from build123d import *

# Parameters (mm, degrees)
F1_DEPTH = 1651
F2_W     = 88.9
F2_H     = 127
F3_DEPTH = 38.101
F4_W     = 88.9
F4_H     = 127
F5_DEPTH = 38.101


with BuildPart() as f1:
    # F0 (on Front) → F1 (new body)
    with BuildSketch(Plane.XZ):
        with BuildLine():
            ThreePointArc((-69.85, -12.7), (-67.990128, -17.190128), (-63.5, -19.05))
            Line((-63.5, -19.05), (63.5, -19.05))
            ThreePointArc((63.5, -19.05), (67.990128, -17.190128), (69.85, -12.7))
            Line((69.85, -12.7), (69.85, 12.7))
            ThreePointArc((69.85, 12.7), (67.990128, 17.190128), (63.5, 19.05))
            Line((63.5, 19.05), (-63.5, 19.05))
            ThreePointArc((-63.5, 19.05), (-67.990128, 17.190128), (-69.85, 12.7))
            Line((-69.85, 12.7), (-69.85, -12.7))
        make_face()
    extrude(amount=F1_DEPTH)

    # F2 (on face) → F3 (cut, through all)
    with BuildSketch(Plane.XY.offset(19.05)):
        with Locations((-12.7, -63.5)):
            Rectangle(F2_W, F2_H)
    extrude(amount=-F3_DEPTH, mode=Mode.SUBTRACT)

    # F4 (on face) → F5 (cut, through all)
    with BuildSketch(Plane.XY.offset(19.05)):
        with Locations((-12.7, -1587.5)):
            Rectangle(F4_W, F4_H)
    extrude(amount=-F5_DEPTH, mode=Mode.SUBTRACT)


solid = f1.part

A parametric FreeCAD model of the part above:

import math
import FreeCAD as App
import Part
import Sketcher

V = App.Vector
Q = App.Units.Quantity


def add_polygon(sketch, points):
    """Adds a closed chain of lines whose ends are joined by coincident constraints."""
    first, n = sketch.GeometryCount, len(points)
    for a, b in zip(points, points[1:] + points[:1]):
        sketch.addGeometry(Part.LineSegment(App.Vector(*a, 0), App.Vector(*b, 0)), False)
    for i in range(n):
        sketch.addConstraint(Sketcher.Constraint("Coincident", first + i, 2, first + (i + 1) % n, 1))

doc = App.newDocument("Part")
body = doc.addObject("PartDesign::Body", "Body")

# Sketch on XZ plane
sketch1 = body.newObject("Sketcher::SketchObject", "Sketch")
sketch1.AttachmentSupport = (doc.getObject("XZ_Plane"), [""])
sketch1.MapMode = "FlatFace"
sketch1.addGeometry(Part.ArcOfCircle(Part.Circle(V(-63.5, -12.7, 0), V(0, 0, 1), 6.35), math.radians(-179.999998), math.radians(-90.000002)), False)
sketch1.addGeometry(Part.LineSegment(V(-63.5, -19.05, 0), V(63.5, -19.05, 0)), False)
sketch1.addGeometry(Part.ArcOfCircle(Part.Circle(V(63.5, -12.7, 0), V(0, 0, 1), 6.35), math.radians(-89.999998), math.radians(-0.000002)), False)
sketch1.addGeometry(Part.LineSegment(V(69.85, -12.7, 0), V(69.85, 12.7, 0)), False)
sketch1.addGeometry(Part.ArcOfCircle(Part.Circle(V(63.5, 12.7, 0), V(0, 0, 1), 6.35), math.radians(0.000002), math.radians(89.999998)), False)
sketch1.addGeometry(Part.LineSegment(V(63.5, 19.05, 0), V(-63.5, 19.05, 0)), False)
sketch1.addGeometry(Part.ArcOfCircle(Part.Circle(V(-63.5, 12.7, 0), V(0, 0, 1), 6.35), math.radians(90.000002), math.radians(179.999998)), False)
sketch1.addGeometry(Part.LineSegment(V(-69.85, 12.7, 0), V(-69.85, -12.7, 0)), False)
sketch1.addConstraint(Sketcher.Constraint("Tangent", 0, 2, 1, 1))
sketch1.addConstraint(Sketcher.Constraint("Tangent", 1, 2, 2, 1))
sketch1.addConstraint(Sketcher.Constraint("Tangent", 2, 2, 3, 1))
sketch1.addConstraint(Sketcher.Constraint("Tangent", 3, 2, 4, 1))
sketch1.addConstraint(Sketcher.Constraint("Tangent", 4, 2, 5, 1))
sketch1.addConstraint(Sketcher.Constraint("Tangent", 5, 2, 6, 1))
sketch1.addConstraint(Sketcher.Constraint("Tangent", 6, 2, 7, 1))
sketch1.addConstraint(Sketcher.Constraint("Tangent", 7, 2, 0, 1))
sketch1.addConstraint(Sketcher.Constraint("Horizontal", 1))
sketch1.addConstraint(Sketcher.Constraint("Vertical", 3))
sketch1.addConstraint(Sketcher.Constraint("Horizontal", 5))
sketch1.addConstraint(Sketcher.Constraint("Vertical", 7))
sketch1.addConstraint(Sketcher.Constraint("Equal", 0, 2))
sketch1.addConstraint(Sketcher.Constraint("Equal", 2, 4))
sketch1.addConstraint(Sketcher.Constraint("Equal", 4, 6))
sketch1.addConstraint(Sketcher.Constraint("Symmetric", 0, 3, 4, 3, -1, 1))
sketch1.addConstraint(Sketcher.Constraint("DistanceX", 1, 1, 1, 2, Q("5 in")))
sketch1.addConstraint(Sketcher.Constraint("DistanceY", 3, 1, 3, 2, Q("1 in")))
sketch1.addConstraint(Sketcher.Constraint("Radius", 0, Q("0.25 in")))
pad1 = body.newObject("PartDesign::Pad", "Pad")
pad1.Profile = sketch1
pad1.Length = Q("65 in")

# Sketch on XY plane
sketch2 = body.newObject("Sketcher::SketchObject", "Sketch001")
sketch2.AttachmentSupport = (doc.getObject("XY_Plane"), [""])
sketch2.MapMode = "FlatFace"
sketch2.AttachmentOffset = App.Placement(V(0, 0, 0.75 * 25.4), App.Rotation())
add_polygon(sketch2, [(-57.15, 0), (-57.15, -127), (31.75, -127), (31.75, 0)])  # lines 0-3
sketch2.addConstraint(Sketcher.Constraint("Vertical", 0))
sketch2.addConstraint(Sketcher.Constraint("Horizontal", 1))
sketch2.addConstraint(Sketcher.Constraint("Vertical", 2))
sketch2.addConstraint(Sketcher.Constraint("Horizontal", 3))
sketch2.addConstraint(Sketcher.Constraint("PointOnObject", 2, 2, -1))
sketch2.addConstraint(Sketcher.Constraint("DistanceY", 0, 2, 0, 1, Q("5 in")))
sketch2.addConstraint(Sketcher.Constraint("DistanceX", 1, 1, 1, 2, Q("3.5 in")))
sketch2.addConstraint(Sketcher.Constraint("DistanceX", 0, 2, -1, 1, Q("2.25 in")))
pocket1 = body.newObject("PartDesign::Pocket", "Pocket")
pocket1.Profile = sketch2
pocket1.Type = "ThroughAll"

# Sketch on XY plane
sketch3 = body.newObject("Sketcher::SketchObject", "Sketch002")
sketch3.AttachmentSupport = (doc.getObject("XY_Plane"), [""])
sketch3.MapMode = "FlatFace"
sketch3.AttachmentOffset = App.Placement(V(0, 0, 0.75 * 25.4), App.Rotation())
add_polygon(sketch3, [(-57.15, -1524), (-57.15, -1651), (31.75, -1651), (31.75, -1524)])  # lines 0-3
sketch3.addConstraint(Sketcher.Constraint("Vertical", 0))
sketch3.addConstraint(Sketcher.Constraint("Horizontal", 1))
sketch3.addConstraint(Sketcher.Constraint("Vertical", 2))
sketch3.addConstraint(Sketcher.Constraint("Horizontal", 3))
sketch3.addConstraint(Sketcher.Constraint("DistanceY", 0, 2, 0, 1, Q("5 in")))
sketch3.addConstraint(Sketcher.Constraint("DistanceX", 1, 1, 1, 2, Q("3.5 in")))
sketch3.addConstraint(Sketcher.Constraint("DistanceY", 0, 2, -1, 1, Q("65 in")))
sketch3.addConstraint(Sketcher.Constraint("DistanceX", 0, 2, -1, 1, Q("2.25 in")))
pocket2 = body.newObject("PartDesign::Pocket", "Pocket001")
pocket2.Profile = sketch3
pocket2.Type = "ThroughAll"

doc.recompute()
